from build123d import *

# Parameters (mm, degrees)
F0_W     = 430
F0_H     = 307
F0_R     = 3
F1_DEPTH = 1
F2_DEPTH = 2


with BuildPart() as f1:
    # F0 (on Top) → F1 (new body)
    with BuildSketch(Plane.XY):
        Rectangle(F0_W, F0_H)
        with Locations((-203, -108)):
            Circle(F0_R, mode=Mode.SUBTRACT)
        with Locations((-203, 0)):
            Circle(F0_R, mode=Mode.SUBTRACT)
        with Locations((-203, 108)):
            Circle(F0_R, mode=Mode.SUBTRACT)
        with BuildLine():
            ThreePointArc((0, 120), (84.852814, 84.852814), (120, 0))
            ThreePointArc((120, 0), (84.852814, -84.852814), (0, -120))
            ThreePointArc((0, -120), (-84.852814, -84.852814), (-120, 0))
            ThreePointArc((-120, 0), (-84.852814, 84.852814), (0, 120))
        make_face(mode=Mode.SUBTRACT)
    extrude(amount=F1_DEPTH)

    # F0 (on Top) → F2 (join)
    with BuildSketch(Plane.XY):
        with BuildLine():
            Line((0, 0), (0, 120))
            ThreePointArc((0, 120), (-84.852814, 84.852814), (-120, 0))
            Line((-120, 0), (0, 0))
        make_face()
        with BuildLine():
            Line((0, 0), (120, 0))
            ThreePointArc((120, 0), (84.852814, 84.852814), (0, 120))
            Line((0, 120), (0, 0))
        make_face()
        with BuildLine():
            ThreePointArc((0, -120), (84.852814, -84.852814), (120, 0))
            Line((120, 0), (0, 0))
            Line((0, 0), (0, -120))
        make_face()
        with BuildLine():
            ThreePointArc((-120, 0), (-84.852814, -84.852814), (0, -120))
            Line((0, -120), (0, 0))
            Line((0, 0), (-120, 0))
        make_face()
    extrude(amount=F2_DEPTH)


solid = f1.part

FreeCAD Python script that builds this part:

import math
import FreeCAD as App
import Part
import Sketcher
from FreeCAD import Vector
Q = App.Units.Quantity


def add_polygon(sketch, points):
    """Adds a closed chain of lines whose ends are joined by coincident constraints."""
    first, n = sketch.GeometryCount, len(points)
    for a, b in zip(points, points[1:] + points[:1]):
        sketch.addGeometry(Part.LineSegment(App.Vector(*a, 0), App.Vector(*b, 0)), False)
    for i in range(n):
        sketch.addConstraint(Sketcher.Constraint("Coincident", first + i, 2, first + (i + 1) % n, 1))

doc = App.newDocument("Part")
body = doc.addObject("PartDesign::Body", "Body")

# Sketch on XY plane
sketch1 = doc.addObject("Sketcher::SketchObject", "Sketch")
body.addObject(sketch1)
sketch1.AttachmentSupport = (doc.XY_Plane, [""])
sketch1.MapMode = "FlatFace"
add_polygon(sketch1, [(-215, 153.5), (-215, -153.5), (215, -153.5), (215, 153.5)])  # lines 0-3
sketch1.addGeometry(Part.Circle(Vector(-203, -108, 0), Vector(0, 0, 1), 3), False)  # 4
sketch1.addGeometry(Part.Circle(Vector(-203, 0, 0), Vector(0, 0, 1), 3), False)  # 5
sketch1.addGeometry(Part.Circle(Vector(-203, 108, 0), Vector(0, 0, 1), 3), False)  # 6
sketch1.addGeometry(Part.ArcOfCircle(Part.Circle(Vector(0, 0, 0), Vector(0, 0, 1), 120), math.radians(90), math.radians(180)), False)  # 7
sketch1.addGeometry(Part.ArcOfCircle(Part.Circle(Vector(0, 0, 0), Vector(0, 0, 1), 120), math.radians(0), math.radians(90)), False)  # 8
sketch1.addGeometry(Part.ArcOfCircle(Part.Circle(Vector(0, 0, 0), Vector(0, 0, 1), 120), math.radians(-90), math.radians(0)), False)  # 9
sketch1.addGeometry(Part.ArcOfCircle(Part.Circle(Vector(0, 0, 0), Vector(0, 0, 1), 120), math.radians(180), math.radians(270)), False)  # 10
sketch1.addConstraint([
    Sketcher.Constraint("Tangent", 7, 1, 8, 2),
    Sketcher.Constraint("Tangent", 8, 1, 9, 2),
    Sketcher.Constraint("Tangent", 9, 1, 10, 2),
    Sketcher.Constraint("Tangent", 10, 1, 7, 2),
    Sketcher.Constraint("Vertical", 0),
    Sketcher.Constraint("Horizontal", 1),
    Sketcher.Constraint("Vertical", 2),
    Sketcher.Constraint("Horizontal", 3),
    Sketcher.Constraint("Coincident", 7, 3, -1, 1),
    Sketcher.Constraint("Equal", 4, 5),
    Sketcher.Constraint("Equal", 5, 6),
    Sketcher.Constraint("Equal", 7, 8),
    Sketcher.Constraint("Symmetric", 0, 2, 2, 2, -1, 1),
    Sketcher.Constraint("Symmetric", 4, 3, 6, 3, -1),
    Sketcher.Constraint("PointOnObject", 5, 3, -1),
    Sketcher.Constraint("PointOnObject", 7, 1, -2),
    Sketcher.Constraint("PointOnObject", 8, 1, -1),
    Sketcher.Constraint("PointOnObject", 9, 1, -2),
    Sketcher.Constraint("PointOnObject", 10, 1, -1),
    Sketcher.Constraint("Vertical", 4, 3, 5, 3),
    Sketcher.Constraint("Diameter", 4, Q("6 mm")),
    Sketcher.Constraint("Radius", 7, Q("119.999999 mm")),
    Sketcher.Constraint("DistanceX", 1, 1, 1, 2, Q("430 mm")),
    Sketcher.Constraint("DistanceY", 0, 2, 0, 1, Q("307 mm")),
    Sketcher.Constraint("DistanceX", 4, 3, -1, 1, Q("203 mm")),
    Sketcher.Constraint("DistanceY", 4, 3, -1, 1, Q("108 mm")),
])
pad1 = doc.addObject("PartDesign::Pad", "Pad")
body.addObject(pad1)
pad1.Profile = sketch1
pad1.Length = 1

# Sketch on XY plane
sketch2 = doc.addObject("Sketcher::SketchObject", "Sketch001")
body.addObject(sketch2)
sketch2.AttachmentSupport = (doc.XY_Plane, [""])
sketch2.MapMode = "FlatFace"
sketch2.addGeometry([
    Part.ArcOfCircle(Part.Circle(Vector(0, 0, 0), Vector(0, 0, 1), 120), math.radians(90), math.radians(180)),
    Part.ArcOfCircle(Part.Circle(Vector(0, 0, 0), Vector(0, 0, 1), 120), math.radians(180), math.radians(270)),
    Part.ArcOfCircle(Part.Circle(Vector(0, 0, 0), Vector(0, 0, 1), 120), math.radians(-90), math.radians(0)),
    Part.ArcOfCircle(Part.Circle(Vector(0, 0, 0), Vector(0, 0, 1), 120), math.radians(0), math.radians(90)),
], False)
sketch2.addConstraint([
    Sketcher.Constraint("Tangent", 0, 2, 1, 1),
    Sketcher.Constraint("Tangent", 1, 2, 2, 1),
    Sketcher.Constraint("Tangent", 2, 2, 3, 1),
    Sketcher.Constraint("Tangent", 3, 2, 0, 1),
    Sketcher.Constraint("Coincident", 0, 3, -1, 1),
    Sketcher.Constraint("Equal", 0, 1),
    Sketcher.Constraint("PointOnObject", 0, 2, -1),
    Sketcher.Constraint("PointOnObject", 1, 2, -2),
    Sketcher.Constraint("PointOnObject", 2, 2, -1),
    Sketcher.Constraint("PointOnObject", 3, 2, -2),
    Sketcher.Constraint("Radius", 0, Q("119.999999 mm")),
])
pad2 = doc.addObject("PartDesign::Pad", "Pad001")
body.addObject(pad2)
pad2.Profile = sketch2
pad2.Length = 2

doc.recompute()
